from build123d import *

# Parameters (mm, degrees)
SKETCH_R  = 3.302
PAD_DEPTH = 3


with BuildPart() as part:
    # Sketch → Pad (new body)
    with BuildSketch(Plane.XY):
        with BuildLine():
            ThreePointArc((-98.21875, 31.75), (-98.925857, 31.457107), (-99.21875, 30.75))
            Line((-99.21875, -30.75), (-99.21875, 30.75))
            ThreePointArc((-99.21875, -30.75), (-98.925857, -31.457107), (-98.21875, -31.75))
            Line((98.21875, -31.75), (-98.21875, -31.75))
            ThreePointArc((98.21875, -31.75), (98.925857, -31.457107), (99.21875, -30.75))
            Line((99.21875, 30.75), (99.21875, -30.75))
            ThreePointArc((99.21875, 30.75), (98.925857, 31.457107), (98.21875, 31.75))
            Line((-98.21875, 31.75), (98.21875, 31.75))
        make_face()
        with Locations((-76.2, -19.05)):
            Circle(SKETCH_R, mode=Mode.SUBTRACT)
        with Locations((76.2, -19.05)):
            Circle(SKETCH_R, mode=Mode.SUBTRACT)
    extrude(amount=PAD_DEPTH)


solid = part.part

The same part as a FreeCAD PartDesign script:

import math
import FreeCAD as App
import Part
import Sketcher
from FreeCAD import Vector
Q = App.Units.Quantity

doc = App.newDocument("Part")
params = doc.addObject("Spreadsheet::Sheet", "Params")
for row, (alias, value) in enumerate([
    ("sketch1_radius", "0.999999 mm"),
    ("sketch1_height", "61.5 mm"),
    ("pad1_length", "3 mm"),
], start=1):
    params.set(f"A{row}", alias)
    params.set(f"B{row}", "=" + value)
    params.setAlias(f"B{row}", alias)

body = doc.addObject("PartDesign::Body", "Body")

sketch1 = body.newObject("Sketcher::SketchObject", "Sketch")
sketch1.AttachmentSupport = (doc.getObject("XY_Plane"), [""])
sketch1.MapMode = "FlatFace"
sketch1.addGeometry([
    Part.ArcOfCircle(Part.Circle(Vector(-98.2, 30.8, 0), Vector(0, 0, 1), 1), math.radians(90), math.radians(180)),
    Part.LineSegment(Vector(-99.2, 30.8, 0), Vector(-99.2, -30.8, 0)),
    Part.ArcOfCircle(Part.Circle(Vector(-98.2, -30.8, 0), Vector(0, 0, 1), 1), math.radians(180), math.radians(270)),
    Part.LineSegment(Vector(-98.2, -31.8, 0), Vector(98.2, -31.8, 0)),
    Part.ArcOfCircle(Part.Circle(Vector(98.2, -30.8, 0), Vector(0, 0, 1), 1), math.radians(-90), math.radians(0)),
    Part.LineSegment(Vector(99.2, -30.8, 0), Vector(99.2, 30.8, 0)),
    Part.ArcOfCircle(Part.Circle(Vector(98.2, 30.8, 0), Vector(0, 0, 1), 1), math.radians(0), math.radians(90)),
    Part.LineSegment(Vector(98.2, 31.8, 0), Vector(-98.2, 31.8, 0)),
    Part.Circle(Vector(-76.2, -19.1, 0), Vector(0, 0, 1), 3.3),
    Part.Circle(Vector(76.2, -19.1, 0), Vector(0, 0, 1), 3.3),
], False)
sketch1.addConstraint([
    Sketcher.Constraint("Tangent", 0, 2, 1, 1),
    Sketcher.Constraint("Tangent", 1, 2, 2, 1),
    Sketcher.Constraint("Tangent", 2, 2, 3, 1),
    Sketcher.Constraint("Tangent", 3, 2, 4, 1),
    Sketcher.Constraint("Tangent", 4, 2, 5, 1),
    Sketcher.Constraint("Tangent", 5, 2, 6, 1),
    Sketcher.Constraint("Tangent", 6, 2, 7, 1),
    Sketcher.Constraint("Tangent", 7, 2, 0, 1),
    Sketcher.Constraint("Vertical", 1),
    Sketcher.Constraint("Horizontal", 3),
    Sketcher.Constraint("Vertical", 5),
    Sketcher.Constraint("Horizontal", 7),
    Sketcher.Constraint("Equal", 0, 2),
    Sketcher.Constraint("Equal", 2, 4),
    Sketcher.Constraint("Equal", 4, 6),
    Sketcher.Constraint("Equal", 8, 9),
    Sketcher.Constraint("Symmetric", 0, 3, 4, 3, -1, 1),
    Sketcher.Constraint("Symmetric", 8, 3, 9, 3, -2),
    Sketcher.Constraint("Radius", 0, Q("0.999999 mm")),
    Sketcher.Constraint("Diameter", 8, Q("6.604 mm")),
    Sketcher.Constraint("DistanceY", 1, 2, 1, 1, Q("61.5 mm")),
    Sketcher.Constraint("DistanceX", 8, 3, -1, 1, Q("76.2 mm")),
    Sketcher.Constraint("DistanceY", 2, 3, 8, 3, Q("11.700001 mm")),
    Sketcher.Constraint("DistanceX", 3, 1, 3, 2, Q("196.4375 mm")),
])
sketch1.setExpression("Constraints[18]", "Params.sketch1_radius")
sketch1.setExpression("Constraints[20]", "Params.sketch1_height")
pad1 = body.newObject("PartDesign::Pad", "Pad")
pad1.Profile = sketch1
pad1.setExpression("Length", "Params.pad1_length")

doc.recompute()
